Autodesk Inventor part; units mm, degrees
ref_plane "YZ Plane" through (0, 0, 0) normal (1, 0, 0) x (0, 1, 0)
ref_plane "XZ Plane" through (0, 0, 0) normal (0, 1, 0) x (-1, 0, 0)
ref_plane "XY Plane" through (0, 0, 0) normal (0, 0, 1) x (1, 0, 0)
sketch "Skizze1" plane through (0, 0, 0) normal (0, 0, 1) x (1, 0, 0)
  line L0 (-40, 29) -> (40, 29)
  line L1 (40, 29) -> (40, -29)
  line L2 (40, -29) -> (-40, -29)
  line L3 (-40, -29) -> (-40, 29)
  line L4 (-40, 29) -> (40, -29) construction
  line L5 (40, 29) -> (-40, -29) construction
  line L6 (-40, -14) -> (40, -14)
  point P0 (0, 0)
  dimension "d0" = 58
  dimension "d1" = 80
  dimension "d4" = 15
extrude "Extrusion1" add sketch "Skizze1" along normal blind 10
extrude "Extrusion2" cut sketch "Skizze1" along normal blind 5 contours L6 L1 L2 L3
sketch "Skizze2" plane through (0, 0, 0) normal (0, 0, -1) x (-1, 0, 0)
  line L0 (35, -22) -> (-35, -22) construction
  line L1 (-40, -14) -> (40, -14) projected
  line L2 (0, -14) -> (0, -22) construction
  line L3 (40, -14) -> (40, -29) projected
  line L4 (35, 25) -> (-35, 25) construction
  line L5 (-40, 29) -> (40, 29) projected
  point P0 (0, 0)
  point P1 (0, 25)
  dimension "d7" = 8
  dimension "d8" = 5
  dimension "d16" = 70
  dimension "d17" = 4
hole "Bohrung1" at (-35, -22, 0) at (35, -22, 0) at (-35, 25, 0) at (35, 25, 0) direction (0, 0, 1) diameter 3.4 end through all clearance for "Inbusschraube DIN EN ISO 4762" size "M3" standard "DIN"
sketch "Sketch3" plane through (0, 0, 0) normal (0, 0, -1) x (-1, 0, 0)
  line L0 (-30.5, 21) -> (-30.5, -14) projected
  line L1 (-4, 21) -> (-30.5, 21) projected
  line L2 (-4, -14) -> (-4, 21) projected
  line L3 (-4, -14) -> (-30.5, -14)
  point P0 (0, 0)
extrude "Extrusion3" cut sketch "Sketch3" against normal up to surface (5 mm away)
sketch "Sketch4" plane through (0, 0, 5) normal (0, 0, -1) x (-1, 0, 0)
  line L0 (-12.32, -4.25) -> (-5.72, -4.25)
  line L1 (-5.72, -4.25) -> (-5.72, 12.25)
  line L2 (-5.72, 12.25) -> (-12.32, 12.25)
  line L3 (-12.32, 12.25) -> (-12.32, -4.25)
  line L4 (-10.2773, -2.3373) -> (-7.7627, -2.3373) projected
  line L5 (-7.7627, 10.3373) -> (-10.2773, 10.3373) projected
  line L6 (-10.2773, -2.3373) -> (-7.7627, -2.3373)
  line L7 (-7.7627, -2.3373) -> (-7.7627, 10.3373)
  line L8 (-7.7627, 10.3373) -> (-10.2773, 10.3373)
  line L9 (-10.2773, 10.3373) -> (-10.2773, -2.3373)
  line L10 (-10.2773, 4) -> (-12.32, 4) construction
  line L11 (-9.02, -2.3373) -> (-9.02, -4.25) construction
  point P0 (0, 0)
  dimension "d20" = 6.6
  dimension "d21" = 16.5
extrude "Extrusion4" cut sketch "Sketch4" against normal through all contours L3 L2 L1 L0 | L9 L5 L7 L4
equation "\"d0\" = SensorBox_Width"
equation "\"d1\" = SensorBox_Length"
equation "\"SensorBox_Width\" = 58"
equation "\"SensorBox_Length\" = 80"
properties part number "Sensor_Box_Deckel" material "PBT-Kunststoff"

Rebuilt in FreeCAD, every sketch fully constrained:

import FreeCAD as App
import Part
import Sketcher

V = App.Vector

doc = App.newDocument("Part")
params = doc.addObject("Spreadsheet::Sheet", "Params")
for row, (alias, value) in enumerate([
    ("sketch1_width", "80 mm"),
    ("sketch1_height", "58 mm"),
    ("pad1_length", "10 mm"),
    ("sketch2_width", "80 mm"),
    ("sketch2_height", "15 mm"),
    ("pocket1_length", "5 mm"),
    ("sketch3_diameter", "3.4 mm"),
    ("hole_diameter", "3.4 mm"),
    ("sketch4_height", "35 mm"),
    ("sketch4_width", "26.5 mm"),
    ("pocket2_length", "5 mm"),
    ("sketch5_width", "6.6 mm"),
    ("sketch5_height", "16.5 mm"),
], start=1):
    params.set(f"A{row}", alias)
    params.set(f"B{row}", "=" + value)
    params.setAlias(f"B{row}", alias)

body = doc.addObject("PartDesign::Body", "Body")

# Sketch on XY plane
sketch1 = body.newObject("Sketcher::SketchObject", "Sketch")
sketch1.AttachmentSupport = (doc.getObject("XY_Plane"), [""])
sketch1.MapMode = "FlatFace"
sketch1.addGeometry(Part.LineSegment(V(40, 29, 0), V(-40, 29, 0)), False)
sketch1.addGeometry(Part.LineSegment(V(-40, 29, 0), V(-40, -29, 0)), False)
sketch1.addGeometry(Part.LineSegment(V(-40, -29, 0), V(40, -29, 0)), False)
sketch1.addGeometry(Part.LineSegment(V(40, -29, 0), V(40, 29, 0)), False)
sketch1.addConstraint(Sketcher.Constraint("Coincident", 0, 2, 1, 1))
sketch1.addConstraint(Sketcher.Constraint("Coincident", 1, 2, 2, 1))
sketch1.addConstraint(Sketcher.Constraint("Coincident", 2, 2, 3, 1))
sketch1.addConstraint(Sketcher.Constraint("Coincident", 3, 2, 0, 1))
sketch1.addConstraint(Sketcher.Constraint("Horizontal", 0))
sketch1.addConstraint(Sketcher.Constraint("Vertical", 1))
sketch1.addConstraint(Sketcher.Constraint("Horizontal", 2))
sketch1.addConstraint(Sketcher.Constraint("Vertical", 3))
sketch1.addConstraint(Sketcher.Constraint("Symmetric", 0, 2, 2, 2, -1, 1))
sketch1.addConstraint(Sketcher.Constraint("DistanceX", 0, 2, 0, 1, 80.0))
sketch1.addConstraint(Sketcher.Constraint("DistanceY", 1, 2, 1, 1, 58.0))
sketch1.setExpression("Constraints[9]", "Params.sketch1_width")
sketch1.setExpression("Constraints[10]", "Params.sketch1_height")
pad1 = body.newObject("PartDesign::Pad", "Pad")
pad1.Profile = sketch1
pad1.setExpression("Length", "Params.pad1_length")

# Sketch on XY plane
sketch2 = body.newObject("Sketcher::SketchObject", "Sketch001")
sketch2.AttachmentSupport = (doc.getObject("XY_Plane"), [""])
sketch2.MapMode = "FlatFace"
sketch2.addGeometry(Part.LineSegment(V(40, -14, 0), V(-40, -14, 0)), False)
sketch2.addGeometry(Part.LineSegment(V(-40, -14, 0), V(-40, -29, 0)), False)
sketch2.addGeometry(Part.LineSegment(V(-40, -29, 0), V(40, -29, 0)), False)
sketch2.addGeometry(Part.LineSegment(V(40, -29, 0), V(40, -14, 0)), False)
sketch2.addConstraint(Sketcher.Constraint("Coincident", 0, 2, 1, 1))
sketch2.addConstraint(Sketcher.Constraint("Coincident", 1, 2, 2, 1))
sketch2.addConstraint(Sketcher.Constraint("Coincident", 2, 2, 3, 1))
sketch2.addConstraint(Sketcher.Constraint("Coincident", 3, 2, 0, 1))
sketch2.addConstraint(Sketcher.Constraint("Horizontal", 0))
sketch2.addConstraint(Sketcher.Constraint("Vertical", 1))
sketch2.addConstraint(Sketcher.Constraint("Horizontal", 2))
sketch2.addConstraint(Sketcher.Constraint("Vertical", 3))
sketch2.addConstraint(Sketcher.Constraint("DistanceX", 0, 2, 0, 1, 80.0))
sketch2.addConstraint(Sketcher.Constraint("DistanceY", 1, 2, 1, 1, 15.0))
sketch2.addConstraint(Sketcher.Constraint("DistanceX", 0, 2, -1, 1, 40.0))
sketch2.addConstraint(Sketcher.Constraint("DistanceY", 0, 2, -1, 1, 14.0))
sketch2.setExpression("Constraints[8]", "Params.sketch2_width")
sketch2.setExpression("Constraints[9]", "Params.sketch2_height")
pocket1 = body.newObject("PartDesign::Pocket", "Pocket")
pocket1.Profile = sketch2
pocket1.setExpression("Length", "Params.pocket1_length")
pocket1.Reversed = True

# Sketch on XY plane
sketch3 = body.newObject("Sketcher::SketchObject", "Sketch002")
sketch3.AttachmentSupport = (doc.getObject("XY_Plane"), [""])
sketch3.MapMode = "FlatFace"
sketch3.addGeometry(Part.Circle(V(-35, -22, 0), V(0, 0, 1), 1.7), False)
sketch3.addGeometry(Part.Circle(V(35, -22, 0), V(0, 0, 1), 1.7), False)
sketch3.addGeometry(Part.Circle(V(-35, 25, 0), V(0, 0, 1), 1.7), False)
sketch3.addGeometry(Part.Circle(V(35, 25, 0), V(0, 0, 1), 1.7), False)
sketch3.addConstraint(Sketcher.Constraint("Equal", 0, 1))
sketch3.addConstraint(Sketcher.Constraint("Equal", 1, 2))
sketch3.addConstraint(Sketcher.Constraint("Equal", 2, 3))
sketch3.addConstraint(Sketcher.Constraint("Symmetric", 0, 3, 1, 3, -2))
sketch3.addConstraint(Sketcher.Constraint("Symmetric", 2, 3, 3, 3, -2))
sketch3.addConstraint(Sketcher.Constraint("Vertical", 0, 3, 2, 3))
sketch3.addConstraint(Sketcher.Constraint("Diameter", 0, 3.4))
sketch3.addConstraint(Sketcher.Constraint("DistanceX", 0, 3, -1, 1, 35.0))
sketch3.addConstraint(Sketcher.Constraint("DistanceY", 0, 3, -1, 1, 22.0))
sketch3.addConstraint(Sketcher.Constraint("DistanceY", -1, 1, 2, 3, 25.0))
sketch3.setExpression("Constraints[6]", "Params.sketch3_diameter")
doc.recompute()
hole = body.newObject("PartDesign::Hole", "Hole")
hole.Profile = sketch3
hole.ThreadType = "None"
hole.setExpression("Diameter", "Params.hole_diameter")
hole.DepthType = "ThroughAll"
hole.Reversed = True

# Sketch on XY plane
sketch4 = body.newObject("Sketcher::SketchObject", "Sketch003")
sketch4.AttachmentSupport = (doc.getObject("XY_Plane"), [""])
sketch4.MapMode = "FlatFace"
sketch4.addGeometry(Part.LineSegment(V(4, 21, 0), V(30, 21, 0)), False)
sketch4.addGeometry(Part.LineSegment(V(30, 21, 0), V(30, -14, 0)), False)
sketch4.addGeometry(Part.LineSegment(V(30, -14, 0), V(4, -14, 0)), False)
sketch4.addGeometry(Part.LineSegment(V(4, -14, 0), V(4, 21, 0)), False)
sketch4.addConstraint(Sketcher.Constraint("Coincident", 0, 2, 1, 1))
sketch4.addConstraint(Sketcher.Constraint("Coincident", 1, 2, 2, 1))
sketch4.addConstraint(Sketcher.Constraint("Coincident", 2, 2, 3, 1))
sketch4.addConstraint(Sketcher.Constraint("Coincident", 3, 2, 0, 1))
sketch4.addConstraint(Sketcher.Constraint("Horizontal", 0))
sketch4.addConstraint(Sketcher.Constraint("Vertical", 1))
sketch4.addConstraint(Sketcher.Constraint("Horizontal", 2))
sketch4.addConstraint(Sketcher.Constraint("Vertical", 3))
sketch4.addConstraint(Sketcher.Constraint("DistanceY", 1, 2, 1, 1, 35.0))
sketch4.addConstraint(Sketcher.Constraint("DistanceX", 0, 1, 0, 2, 26.5))
sketch4.addConstraint(Sketcher.Constraint("DistanceY", -1, 1, 0, 2, 21.0))
sketch4.addConstraint(Sketcher.Constraint("DistanceX", -1, 1, 2, 2, 4.0))
sketch4.setExpression("Constraints[8]", "Params.sketch4_height")
sketch4.setExpression("Constraints[9]", "Params.sketch4_width")
pocket2 = body.newObject("PartDesign::Pocket", "Pocket001")
pocket2.Profile = sketch4
pocket2.setExpression("Length", "Params.pocket2_length")
pocket2.Reversed = True

# Sketch on XY plane
sketch5 = body.newObject("Sketcher::SketchObject", "Sketch004")
sketch5.AttachmentSupport = (doc.getObject("XY_Plane"), [""])
sketch5.MapMode = "FlatFace"
sketch5.AttachmentOffset = App.Placement(V(0, 0, 5), App.Rotation())
sketch5.addGeometry(Part.LineSegment(V(12, 12, 0), V(12, -4, 0)), False)
sketch5.addGeometry(Part.LineSegment(V(12, -4, 0), V(6, -4, 0)), False)
sketch5.addGeometry(Part.LineSegment(V(6, -4, 0), V(6, 12, 0)), False)
sketch5.addGeometry(Part.LineSegment(V(6, 12, 0), V(12, 12, 0)), False)
sketch5.addConstraint(Sketcher.Constraint("Coincident", 0, 2, 1, 1))
sketch5.addConstraint(Sketcher.Constraint("Coincident", 1, 2, 2, 1))
sketch5.addConstraint(Sketcher.Constraint("Coincident", 2, 2, 3, 1))
sketch5.addConstraint(Sketcher.Constraint("Coincident", 3, 2, 0, 1))
sketch5.addConstraint(Sketcher.Constraint("Vertical", 0))
sketch5.addConstraint(Sketcher.Constraint("Horizontal", 1))
sketch5.addConstraint(Sketcher.Constraint("Vertical", 2))
sketch5.addConstraint(Sketcher.Constraint("Horizontal", 3))
sketch5.addConstraint(Sketcher.Constraint("DistanceX", 1, 2, 1, 1, 6.6))
sketch5.addConstraint(Sketcher.Constraint("DistanceY", 0, 2, 0, 1, 16.5))
sketch5.addConstraint(Sketcher.Constraint("DistanceX", -1, 1, 0, 2, 12.32))
sketch5.addConstraint(Sketcher.Constraint("DistanceY", 0, 2, -1, 1, 4.25))
sketch5.setExpression("Constraints[8]", "Params.sketch5_width")
sketch5.setExpression("Constraints[9]", "Params.sketch5_height")
pocket3 = body.newObject("PartDesign::Pocket", "Pocket002")
pocket3.Profile = sketch5
pocket3.Type = "ThroughAll"
pocket3.Reversed = True

doc.recompute()
